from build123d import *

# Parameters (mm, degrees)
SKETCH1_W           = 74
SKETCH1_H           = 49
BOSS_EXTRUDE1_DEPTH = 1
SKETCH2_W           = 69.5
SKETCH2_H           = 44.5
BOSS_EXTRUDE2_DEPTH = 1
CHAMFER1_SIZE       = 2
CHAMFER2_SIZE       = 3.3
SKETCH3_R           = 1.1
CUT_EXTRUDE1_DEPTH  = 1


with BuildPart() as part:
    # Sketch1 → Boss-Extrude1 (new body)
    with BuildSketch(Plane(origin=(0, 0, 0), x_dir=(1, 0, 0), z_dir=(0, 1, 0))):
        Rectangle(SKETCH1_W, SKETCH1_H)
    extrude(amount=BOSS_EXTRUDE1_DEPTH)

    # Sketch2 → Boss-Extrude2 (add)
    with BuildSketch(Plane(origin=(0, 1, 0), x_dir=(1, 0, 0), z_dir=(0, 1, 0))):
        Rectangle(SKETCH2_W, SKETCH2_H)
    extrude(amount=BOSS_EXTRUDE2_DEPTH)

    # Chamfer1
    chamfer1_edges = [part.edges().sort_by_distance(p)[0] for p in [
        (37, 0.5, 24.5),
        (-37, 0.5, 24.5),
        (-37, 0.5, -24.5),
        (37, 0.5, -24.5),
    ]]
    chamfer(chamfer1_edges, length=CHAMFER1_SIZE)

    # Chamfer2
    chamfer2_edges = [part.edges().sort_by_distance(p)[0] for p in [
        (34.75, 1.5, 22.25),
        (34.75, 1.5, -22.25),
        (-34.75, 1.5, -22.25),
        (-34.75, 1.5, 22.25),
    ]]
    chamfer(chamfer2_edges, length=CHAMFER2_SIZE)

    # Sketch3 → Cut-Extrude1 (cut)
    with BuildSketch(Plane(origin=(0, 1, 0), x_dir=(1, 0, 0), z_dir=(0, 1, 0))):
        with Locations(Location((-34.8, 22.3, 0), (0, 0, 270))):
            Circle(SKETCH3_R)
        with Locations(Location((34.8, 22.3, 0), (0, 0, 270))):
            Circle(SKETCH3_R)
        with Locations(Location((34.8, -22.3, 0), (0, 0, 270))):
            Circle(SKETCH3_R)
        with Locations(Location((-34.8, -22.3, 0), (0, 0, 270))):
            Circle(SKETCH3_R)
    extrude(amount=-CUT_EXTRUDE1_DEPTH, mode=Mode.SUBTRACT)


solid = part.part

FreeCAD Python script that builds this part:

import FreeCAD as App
import Part
import Sketcher
from FreeCAD import Vector


def edges_at(feature, points):
    """Names of the edges that pass closest to the given points."""
    edges = feature.Shape.Edges
    near = lambda p: min(range(len(edges)), key=lambda i: edges[i].distToShape(Part.Vertex(*p))[0])
    return sorted({f"Edge{near(p) + 1}" for p in points})

doc = App.newDocument("Part")
body = doc.addObject("PartDesign::Body", "Body")

# Sketch on XZ plane
sketch1 = body.newObject("Sketcher::SketchObject", "Sketch")
sketch1.AttachmentSupport = (doc.getObject("XZ_Plane"), [""])
sketch1.MapMode = "FlatFace"
sketch1.addGeometry([
    Part.LineSegment(Vector(-37, -24, 0), Vector(-37, 24, 0)),
    Part.LineSegment(Vector(-37, 24, 0), Vector(37, 24, 0)),
    Part.LineSegment(Vector(37, 24, 0), Vector(37, -24, 0)),
    Part.LineSegment(Vector(37, -24, 0), Vector(-37, -24, 0)),
], False)
sketch1.addConstraint([
    Sketcher.Constraint("Coincident", 0, 2, 1, 1),
    Sketcher.Constraint("Coincident", 1, 2, 2, 1),
    Sketcher.Constraint("Coincident", 2, 2, 3, 1),
    Sketcher.Constraint("Coincident", 3, 2, 0, 1),
    Sketcher.Constraint("Vertical", 0),
    Sketcher.Constraint("Horizontal", 1),
    Sketcher.Constraint("Vertical", 2),
    Sketcher.Constraint("Horizontal", 3),
    Sketcher.Constraint("Symmetric", 0, 2, 2, 2, -1, 1),
    Sketcher.Constraint("DistanceX", 1, 1, 1, 2, 74.0),
    Sketcher.Constraint("DistanceY", 0, 1, 0, 2, 49.0),
])
pad1 = body.newObject("PartDesign::Pad", "Pad")
pad1.Profile = sketch1
pad1.Length = 1
pad1.Reversed = True

# Sketch on XZ plane
sketch2 = body.newObject("Sketcher::SketchObject", "Sketch001")
sketch2.AttachmentSupport = (doc.getObject("XZ_Plane"), [""])
sketch2.MapMode = "FlatFace"
sketch2.AttachmentOffset = App.Placement(Vector(0, 0, -1), App.Rotation())
sketch2.addGeometry([
    Part.LineSegment(Vector(-35, -22, 0), Vector(-35, 22, 0)),
    Part.LineSegment(Vector(-35, 22, 0), Vector(35, 22, 0)),
    Part.LineSegment(Vector(35, 22, 0), Vector(35, -22, 0)),
    Part.LineSegment(Vector(35, -22, 0), Vector(-35, -22, 0)),
], False)
sketch2.addConstraint([
    Sketcher.Constraint("Coincident", 0, 2, 1, 1),
    Sketcher.Constraint("Coincident", 1, 2, 2, 1),
    Sketcher.Constraint("Coincident", 2, 2, 3, 1),
    Sketcher.Constraint("Coincident", 3, 2, 0, 1),
    Sketcher.Constraint("Vertical", 0),
    Sketcher.Constraint("Horizontal", 1),
    Sketcher.Constraint("Vertical", 2),
    Sketcher.Constraint("Horizontal", 3),
    Sketcher.Constraint("Symmetric", 0, 2, 2, 2, -1, 1),
    Sketcher.Constraint("DistanceX", 1, 1, 1, 2, 69.5),
    Sketcher.Constraint("DistanceY", 0, 1, 0, 2, 44.5),
])
pad2 = body.newObject("PartDesign::Pad", "Pad001")
pad2.Profile = sketch2
pad2.Length = 1
pad2.Reversed = True
doc.recompute()

chamfer = body.newObject("PartDesign::Chamfer", "Chamfer")
chamfer.Base = (pad2, edges_at(pad2, [
    (37, 0.5, 24.5),
    (-37, 0.5, 24.5),
    (-37, 0.5, -24.5),
    (37, 0.5, -24.5),
]))
chamfer.Size = 2
doc.recompute()

chamfer2 = body.newObject("PartDesign::Chamfer", "Chamfer001")
chamfer2.Base = (chamfer, edges_at(chamfer, [
    (34.75, 1.5, 22.25),
    (34.75, 1.5, -22.25),
    (-34.75, 1.5, -22.25),
    (-34.75, 1.5, 22.25),
]))
chamfer2.Size = 3.3

# Sketch on XZ plane
sketch3 = body.newObject("Sketcher::SketchObject", "Sketch002")
sketch3.AttachmentSupport = (doc.getObject("XZ_Plane"), [""])
sketch3.MapMode = "FlatFace"
sketch3.AttachmentOffset = App.Placement(Vector(0, 0, -1), App.Rotation())
sketch3.addGeometry([
    Part.Circle(Vector(-34.8, -22.3, 0), Vector(0, 0, 1), 1.1),
    Part.Circle(Vector(34.8, -22.3, 0), Vector(0, 0, 1), 1.1),
    Part.Circle(Vector(34.8, 22.3, 0), Vector(0, 0, 1), 1.1),
    Part.Circle(Vector(-34.8, 22.3, 0), Vector(0, 0, 1), 1.1),
], False)
sketch3.addConstraint([
    Sketcher.Constraint("Equal", 0, 1),
    Sketcher.Constraint("Equal", 1, 2),
    Sketcher.Constraint("Equal", 2, 3),
    Sketcher.Constraint("Symmetric", 0, 3, 2, 3, -1, 1),
    Sketcher.Constraint("Symmetric", 1, 3, 3, 3, -1, 1),
    Sketcher.Constraint("Symmetric", 0, 3, 1, 3, -2),
    Sketcher.Constraint("Diameter", 0, 2.2),
    Sketcher.Constraint("DistanceX", 0, 3, -1, 1, 34.8),
    Sketcher.Constraint("DistanceY", 0, 3, -1, 1, 22.3),
])
pocket1 = body.newObject("PartDesign::Pocket", "Pocket")
pocket1.Profile = sketch3
pocket1.Length = 1
pocket1.Reversed = True

doc.recompute()
